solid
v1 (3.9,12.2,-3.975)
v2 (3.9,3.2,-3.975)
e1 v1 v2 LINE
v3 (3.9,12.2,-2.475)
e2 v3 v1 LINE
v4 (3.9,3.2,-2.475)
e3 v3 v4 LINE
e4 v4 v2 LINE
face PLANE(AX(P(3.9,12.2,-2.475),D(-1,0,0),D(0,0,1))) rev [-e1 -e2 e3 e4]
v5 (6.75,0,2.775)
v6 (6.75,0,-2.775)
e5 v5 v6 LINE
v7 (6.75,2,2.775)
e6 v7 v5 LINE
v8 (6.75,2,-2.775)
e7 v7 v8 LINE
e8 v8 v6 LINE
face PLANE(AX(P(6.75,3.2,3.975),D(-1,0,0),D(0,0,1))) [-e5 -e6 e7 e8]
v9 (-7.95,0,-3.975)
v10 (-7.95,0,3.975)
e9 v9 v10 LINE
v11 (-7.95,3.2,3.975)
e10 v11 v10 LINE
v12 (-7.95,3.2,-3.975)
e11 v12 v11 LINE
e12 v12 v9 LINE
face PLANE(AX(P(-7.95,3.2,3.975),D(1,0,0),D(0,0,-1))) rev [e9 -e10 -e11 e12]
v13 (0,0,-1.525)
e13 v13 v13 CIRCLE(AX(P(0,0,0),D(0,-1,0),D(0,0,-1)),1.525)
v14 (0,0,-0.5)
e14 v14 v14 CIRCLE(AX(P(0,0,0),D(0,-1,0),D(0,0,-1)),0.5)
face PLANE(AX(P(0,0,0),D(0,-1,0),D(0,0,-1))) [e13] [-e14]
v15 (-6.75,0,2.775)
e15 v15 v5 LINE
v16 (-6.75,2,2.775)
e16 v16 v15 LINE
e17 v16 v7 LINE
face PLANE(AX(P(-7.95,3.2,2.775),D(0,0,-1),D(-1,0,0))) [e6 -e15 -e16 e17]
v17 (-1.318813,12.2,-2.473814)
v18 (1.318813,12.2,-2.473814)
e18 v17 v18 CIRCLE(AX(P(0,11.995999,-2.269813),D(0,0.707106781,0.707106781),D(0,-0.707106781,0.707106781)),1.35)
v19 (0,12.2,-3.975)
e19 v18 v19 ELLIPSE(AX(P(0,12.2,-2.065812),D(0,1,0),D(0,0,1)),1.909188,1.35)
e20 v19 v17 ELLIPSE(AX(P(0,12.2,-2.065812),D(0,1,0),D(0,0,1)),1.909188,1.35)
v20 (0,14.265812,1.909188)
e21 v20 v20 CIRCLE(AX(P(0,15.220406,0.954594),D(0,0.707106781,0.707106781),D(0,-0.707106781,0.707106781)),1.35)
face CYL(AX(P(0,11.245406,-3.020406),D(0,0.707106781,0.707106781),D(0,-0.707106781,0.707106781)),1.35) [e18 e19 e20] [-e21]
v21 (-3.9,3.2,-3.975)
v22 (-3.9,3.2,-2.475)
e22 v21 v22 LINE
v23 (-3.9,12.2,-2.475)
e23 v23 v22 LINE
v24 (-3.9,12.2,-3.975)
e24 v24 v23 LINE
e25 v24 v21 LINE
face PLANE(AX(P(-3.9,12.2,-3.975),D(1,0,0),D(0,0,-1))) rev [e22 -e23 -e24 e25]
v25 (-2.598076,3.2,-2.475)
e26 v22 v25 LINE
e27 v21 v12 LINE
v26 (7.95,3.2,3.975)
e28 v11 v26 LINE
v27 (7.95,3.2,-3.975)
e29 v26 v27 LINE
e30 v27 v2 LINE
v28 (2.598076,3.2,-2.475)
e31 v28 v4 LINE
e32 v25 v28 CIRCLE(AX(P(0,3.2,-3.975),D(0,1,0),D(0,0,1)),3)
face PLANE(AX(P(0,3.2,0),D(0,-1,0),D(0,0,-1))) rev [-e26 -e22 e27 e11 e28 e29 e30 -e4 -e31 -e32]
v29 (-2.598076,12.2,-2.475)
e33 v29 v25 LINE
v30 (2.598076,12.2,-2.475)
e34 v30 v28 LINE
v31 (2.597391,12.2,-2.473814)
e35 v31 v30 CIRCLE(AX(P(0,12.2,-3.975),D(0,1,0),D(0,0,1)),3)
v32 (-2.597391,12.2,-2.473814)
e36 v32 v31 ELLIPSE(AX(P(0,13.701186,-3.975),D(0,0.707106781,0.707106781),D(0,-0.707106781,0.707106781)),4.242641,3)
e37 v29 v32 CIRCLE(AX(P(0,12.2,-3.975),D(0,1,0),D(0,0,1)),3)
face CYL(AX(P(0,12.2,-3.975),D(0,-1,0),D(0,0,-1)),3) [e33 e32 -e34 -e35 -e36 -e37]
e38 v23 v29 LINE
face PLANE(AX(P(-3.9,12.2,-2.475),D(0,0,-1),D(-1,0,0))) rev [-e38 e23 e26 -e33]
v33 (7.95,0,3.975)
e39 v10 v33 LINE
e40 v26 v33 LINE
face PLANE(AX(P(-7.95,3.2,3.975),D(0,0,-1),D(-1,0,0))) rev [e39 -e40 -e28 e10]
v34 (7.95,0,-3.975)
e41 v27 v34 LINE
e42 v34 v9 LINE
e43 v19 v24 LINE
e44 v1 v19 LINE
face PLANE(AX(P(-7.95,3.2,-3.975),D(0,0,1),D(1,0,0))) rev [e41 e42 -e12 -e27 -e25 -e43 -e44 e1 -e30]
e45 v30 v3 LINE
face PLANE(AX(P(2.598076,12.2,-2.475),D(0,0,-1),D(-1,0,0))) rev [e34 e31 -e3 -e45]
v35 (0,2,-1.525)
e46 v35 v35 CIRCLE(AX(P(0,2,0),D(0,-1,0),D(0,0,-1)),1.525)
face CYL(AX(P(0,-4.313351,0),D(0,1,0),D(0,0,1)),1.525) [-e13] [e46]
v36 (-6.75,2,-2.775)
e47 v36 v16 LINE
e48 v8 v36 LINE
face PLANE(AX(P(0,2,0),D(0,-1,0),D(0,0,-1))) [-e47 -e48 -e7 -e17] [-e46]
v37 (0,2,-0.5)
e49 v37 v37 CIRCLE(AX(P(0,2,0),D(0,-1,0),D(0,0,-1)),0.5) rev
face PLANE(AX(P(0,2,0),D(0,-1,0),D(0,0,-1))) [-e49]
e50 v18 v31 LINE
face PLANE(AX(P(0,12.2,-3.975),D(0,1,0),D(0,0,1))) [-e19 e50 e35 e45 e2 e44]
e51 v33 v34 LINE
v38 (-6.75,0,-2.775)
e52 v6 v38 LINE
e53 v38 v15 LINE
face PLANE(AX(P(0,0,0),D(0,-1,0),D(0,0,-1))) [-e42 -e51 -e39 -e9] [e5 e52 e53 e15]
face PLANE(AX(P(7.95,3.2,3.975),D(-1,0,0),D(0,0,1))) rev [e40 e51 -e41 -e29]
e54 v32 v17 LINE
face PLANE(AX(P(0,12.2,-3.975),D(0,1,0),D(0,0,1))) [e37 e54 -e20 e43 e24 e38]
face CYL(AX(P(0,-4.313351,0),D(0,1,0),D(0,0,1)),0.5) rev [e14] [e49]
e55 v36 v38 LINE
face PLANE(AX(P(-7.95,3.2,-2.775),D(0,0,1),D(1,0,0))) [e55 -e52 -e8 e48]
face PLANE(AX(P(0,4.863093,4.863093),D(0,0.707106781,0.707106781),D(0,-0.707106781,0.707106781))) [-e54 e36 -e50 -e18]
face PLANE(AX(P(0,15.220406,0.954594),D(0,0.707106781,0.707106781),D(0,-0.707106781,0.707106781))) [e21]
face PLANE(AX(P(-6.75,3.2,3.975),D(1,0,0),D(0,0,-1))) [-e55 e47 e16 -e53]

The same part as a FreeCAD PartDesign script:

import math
import FreeCAD as App
import Part
import Sketcher

V = App.Vector


def faces_at(feature, points):
    """Names of the faces that lie closest to the given points."""
    faces = feature.Shape.Faces
    near = lambda p: min(range(len(faces)), key=lambda i: faces[i].distToShape(Part.Vertex(*p))[0])
    return sorted({f"Face{near(p) + 1}" for p in points})


def add_polygon(sketch, points):
    """Adds a closed chain of lines whose ends are joined by coincident constraints."""
    first, n = sketch.GeometryCount, len(points)
    for a, b in zip(points, points[1:] + points[:1]):
        sketch.addGeometry(Part.LineSegment(App.Vector(*a, 0), App.Vector(*b, 0)), False)
    for i in range(n):
        sketch.addConstraint(Sketcher.Constraint("Coincident", first + i, 2, first + (i + 1) % n, 1))

doc = App.newDocument("Part")
body = doc.addObject("PartDesign::Body", "Body")

sketch1 = body.newObject("Sketcher::SketchObject", "Sketch")
sketch1.AttachmentSupport = (doc.getObject("XZ_Plane"), [""])
sketch1.MapMode = "FlatFace"
add_polygon(sketch1, [(-8, -4), (-8, 4), (8, 4), (8, -4)])
sketch1.addConstraint([
    Sketcher.Constraint("Vertical", 0),
    Sketcher.Constraint("Horizontal", 1),
    Sketcher.Constraint("Vertical", 2),
    Sketcher.Constraint("Horizontal", 3),
    Sketcher.Constraint("Symmetric", 0, 2, 2, 2, -1, 1),
    Sketcher.Constraint("DistanceX", 1, 1, 1, 2, 15.9),
    Sketcher.Constraint("DistanceY", 0, 1, 0, 2, 7.95),
])
pad1 = body.newObject("PartDesign::Pad", "Pad")
pad1.Profile = sketch1
pad1.Length = 3.2
pad1.Reversed = True
doc.recompute()

thickness = body.newObject("PartDesign::Thickness", "Thickness")
thickness.Base = (pad1, faces_at(pad1, [(0, 0, 0)]))
thickness.Value = 1.2
thickness.Reversed = True
thickness.Join = "Intersection"

sketch2 = body.newObject("Sketcher::SketchObject", "Sketch001")
sketch2.AttachmentSupport = (doc.getObject("XZ_Plane"), [""])
sketch2.MapMode = "FlatFace"
sketch2.AttachmentOffset = App.Placement(V(0, 0, -2), App.Rotation())
sketch2.addGeometry([
    Part.Circle(V(0, 0, 0), V(0, 0, 1), 1.5),
    Part.Circle(V(0, 0, 0), V(0, 0, 1), 0.5),
], False)
sketch2.addConstraint([
    Sketcher.Constraint("Coincident", 0, 3, -1, 1),
    Sketcher.Constraint("Coincident", 1, 3, -1, 1),
    Sketcher.Constraint("Diameter", 1, 1.0),
    Sketcher.Constraint("Diameter", 0, 3.05),
])
pad2 = body.newObject("PartDesign::Pad", "Pad001")
pad2.Profile = sketch2
pad2.Length = 2

sketch3 = body.newObject("Sketcher::SketchObject", "Sketch002")
sketch3.AttachmentSupport = (doc.getObject("XZ_Plane"), [""])
sketch3.MapMode = "FlatFace"
sketch3.AttachmentOffset = App.Placement(V(0, 0, -3.2), App.Rotation())
sketch3.addGeometry([
    Part.LineSegment(V(-3.9, -4, 0), V(-3.9, -2.5, 0)),
    Part.LineSegment(V(-3.9, -2.5, 0), V(-2.6, -2.5, 0)),
    Part.ArcOfCircle(Part.Circle(V(0, -4, 0), V(0, 0, 1), 3), math.radians(30), math.radians(150)),
    Part.LineSegment(V(2.6, -2.5, 0), V(3.9, -2.5, 0)),
    Part.LineSegment(V(3.9, -2.5, 0), V(3.9, -4, 0)),
    Part.LineSegment(V(3.9, -4, 0), V(-3.9, -4, 0)),
], False)
sketch3.addConstraint([
    Sketcher.Constraint("Coincident", 0, 2, 1, 1),
    Sketcher.Constraint("Coincident", 1, 2, 2, 2),
    Sketcher.Constraint("Coincident", 2, 1, 3, 1),
    Sketcher.Constraint("Coincident", 3, 2, 4, 1),
    Sketcher.Constraint("Coincident", 4, 2, 5, 1),
    Sketcher.Constraint("Coincident", 5, 2, 0, 1),
    Sketcher.Constraint("Vertical", 0),
    Sketcher.Constraint("Horizontal", 1),
    Sketcher.Constraint("Horizontal", 3),
    Sketcher.Constraint("Vertical", 4),
    Sketcher.Constraint("Horizontal", 5),
    Sketcher.Constraint("Symmetric", 1, 2, 2, 1, -2),
    Sketcher.Constraint("Horizontal", 2, 3, 4, 2),
    Sketcher.Constraint("Equal", 1, 3),
    Sketcher.Constraint("Radius", 2, 3.0),
    Sketcher.Constraint("DistanceX", 5, 2, 5, 1, 7.8),
    Sketcher.Constraint("DistanceY", 0, 1, 0, 2, 1.5),
    Sketcher.Constraint("DistanceY", 2, 3, -1, 1, 3.975),
])
pad3 = body.newObject("PartDesign::Pad", "Pad002")
pad3.Profile = sketch3
pad3.Length = 9
pad3.Reversed = True

sketch4 = body.newObject("Sketcher::SketchObject", "Sketch003")
sketch4.Placement = App.Placement(V(0, 4.863093, 4.863093), App.Rotation(V(1, 0, 0), V(0, 0.707106781, -0.707106781), V(0, 0.707106781, 0.707106781), "ZXY"))
add_polygon(sketch4, [(-15, 15), (-15, -15), (15, -15), (15, 15)])
sketch4.addConstraint([
    Sketcher.Constraint("Vertical", 0),
    Sketcher.Constraint("Horizontal", 1),
    Sketcher.Constraint("Vertical", 2),
    Sketcher.Constraint("Horizontal", 3),
    Sketcher.Constraint("Symmetric", 0, 2, 2, 2, -1, 1),
    Sketcher.Constraint("Equal", 3, 0),
    Sketcher.Constraint("DistanceX", 1, 1, 1, 2, 30.0),
])
pocket1 = body.newObject("PartDesign::Pocket", "Pocket")
pocket1.Profile = sketch4
pocket1.Type = "ThroughAll"
pocket1.Reversed = True

sketch5 = body.newObject("Sketcher::SketchObject", "Sketch004")
sketch5.Placement = App.Placement(V(0, 4.1125, 4.1125), App.Rotation(V(1, 0, 0), V(0, 0.707106781, -0.707106781), V(0, 0.707106781, 0.707106781), "ZXY"))
sketch5.addGeometry(Part.Circle(V(0, 10.1, 0), V(0, 0, 1), 1.4), False)
sketch5.addConstraint([
    Sketcher.Constraint("PointOnObject", 0, 3, -2),
    Sketcher.Constraint("Diameter", 0, 2.7),
    Sketcher.Constraint("DistanceY", -1, 1, 0, 3, 10.087452),
])
pad4 = body.newObject("PartDesign::Pad", "Pad003")
pad4.Profile = sketch5
pad4.Length = 5.621499

doc.recompute()
